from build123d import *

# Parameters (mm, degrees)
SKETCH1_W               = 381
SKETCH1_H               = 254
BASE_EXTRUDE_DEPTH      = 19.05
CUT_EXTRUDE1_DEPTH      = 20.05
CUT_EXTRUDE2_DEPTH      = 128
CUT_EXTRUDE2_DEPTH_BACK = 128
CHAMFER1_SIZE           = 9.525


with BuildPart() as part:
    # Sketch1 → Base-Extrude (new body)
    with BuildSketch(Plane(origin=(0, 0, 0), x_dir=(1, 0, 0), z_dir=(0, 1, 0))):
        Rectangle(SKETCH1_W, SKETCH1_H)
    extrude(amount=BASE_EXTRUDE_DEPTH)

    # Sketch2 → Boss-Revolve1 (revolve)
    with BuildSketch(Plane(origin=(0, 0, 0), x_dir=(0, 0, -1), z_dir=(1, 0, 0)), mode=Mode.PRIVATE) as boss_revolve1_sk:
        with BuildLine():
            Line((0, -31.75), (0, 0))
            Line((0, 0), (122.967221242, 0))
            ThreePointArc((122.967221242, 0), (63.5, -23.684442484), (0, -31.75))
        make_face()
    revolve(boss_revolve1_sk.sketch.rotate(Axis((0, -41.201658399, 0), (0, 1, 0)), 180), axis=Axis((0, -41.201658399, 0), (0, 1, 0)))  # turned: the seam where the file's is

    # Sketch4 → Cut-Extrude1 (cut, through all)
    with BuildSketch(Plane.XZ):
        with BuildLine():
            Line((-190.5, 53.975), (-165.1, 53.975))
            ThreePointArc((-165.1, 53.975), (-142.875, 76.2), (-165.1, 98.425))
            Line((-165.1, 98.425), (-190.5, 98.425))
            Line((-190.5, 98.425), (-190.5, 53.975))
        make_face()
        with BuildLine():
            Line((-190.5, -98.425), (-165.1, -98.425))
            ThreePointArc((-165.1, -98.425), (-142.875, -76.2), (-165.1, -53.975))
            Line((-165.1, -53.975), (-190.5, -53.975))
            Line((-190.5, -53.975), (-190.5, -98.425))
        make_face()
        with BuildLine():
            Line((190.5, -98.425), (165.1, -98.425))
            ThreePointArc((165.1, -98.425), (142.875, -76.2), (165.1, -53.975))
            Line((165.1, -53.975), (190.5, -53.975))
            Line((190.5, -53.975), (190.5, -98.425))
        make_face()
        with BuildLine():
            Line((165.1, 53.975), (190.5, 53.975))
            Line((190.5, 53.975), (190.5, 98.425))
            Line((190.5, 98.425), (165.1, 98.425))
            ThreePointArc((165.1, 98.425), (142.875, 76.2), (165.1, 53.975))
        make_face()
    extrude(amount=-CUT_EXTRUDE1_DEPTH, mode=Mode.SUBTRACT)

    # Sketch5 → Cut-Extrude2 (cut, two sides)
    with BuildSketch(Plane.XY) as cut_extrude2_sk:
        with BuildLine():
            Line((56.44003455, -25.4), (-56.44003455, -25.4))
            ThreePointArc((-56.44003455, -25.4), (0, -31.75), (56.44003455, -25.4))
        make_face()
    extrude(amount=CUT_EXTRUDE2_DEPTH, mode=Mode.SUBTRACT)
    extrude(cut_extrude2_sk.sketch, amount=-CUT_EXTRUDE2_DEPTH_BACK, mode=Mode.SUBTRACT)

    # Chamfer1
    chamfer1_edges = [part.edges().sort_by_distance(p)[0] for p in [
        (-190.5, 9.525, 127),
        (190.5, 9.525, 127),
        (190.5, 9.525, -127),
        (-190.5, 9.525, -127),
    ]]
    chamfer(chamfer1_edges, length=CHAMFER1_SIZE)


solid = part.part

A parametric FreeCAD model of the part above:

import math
import FreeCAD as App
import Part
import Sketcher
Q = App.Units.Quantity


def edges_at(feature, points):
    """Names of the edges that pass closest to the given points."""
    edges = feature.Shape.Edges
    near = lambda p: min(range(len(edges)), key=lambda i: edges[i].distToShape(Part.Vertex(*p))[0])
    return sorted({f"Edge{near(p) + 1}" for p in points})

doc = App.newDocument("Part")
body = doc.addObject("PartDesign::Body", "Body")

# Sketch on XZ plane
sketch1 = body.newObject("Sketcher::SketchObject", "Sketch")
sketch1.AttachmentSupport = (doc.getObject("XZ_Plane"), [""])
sketch1.MapMode = "FlatFace"
sketch1.addGeometry([
    Part.LineSegment(App.Vector(-190, -127, 0), App.Vector(-190, 127, 0)),
    Part.LineSegment(App.Vector(-190, 127, 0), App.Vector(190, 127, 0)),
    Part.LineSegment(App.Vector(190, 127, 0), App.Vector(190, -127, 0)),
    Part.LineSegment(App.Vector(190, -127, 0), App.Vector(-190, -127, 0)),
], False)
sketch1.addConstraint([
    Sketcher.Constraint("Coincident", 0, 2, 1, 1),
    Sketcher.Constraint("Coincident", 1, 2, 2, 1),
    Sketcher.Constraint("Coincident", 2, 2, 3, 1),
    Sketcher.Constraint("Coincident", 3, 2, 0, 1),
    Sketcher.Constraint("Vertical", 0),
    Sketcher.Constraint("Horizontal", 1),
    Sketcher.Constraint("Vertical", 2),
    Sketcher.Constraint("Horizontal", 3),
    Sketcher.Constraint("Symmetric", 0, 2, 2, 2, -1, 1),
    Sketcher.Constraint("DistanceX", 1, 1, 1, 2, Q("15 in")),
    Sketcher.Constraint("DistanceY", 0, 1, 0, 2, Q("10 in")),
])
pad1 = body.newObject("PartDesign::Pad", "Pad")
pad1.Profile = sketch1
pad1.Length = Q("0.75 in")
pad1.Reversed = True

# Sketch on YZ plane
sketch2 = body.newObject("Sketcher::SketchObject", "Sketch001")
sketch2.AttachmentSupport = (doc.getObject("YZ_Plane"), [""])
sketch2.MapMode = "FlatFace"
sketch2.addGeometry([
    Part.LineSegment(App.Vector(0, 0, 0), App.Vector(-32, 0, 0)),
    Part.ArcOfCircle(Part.Circle(App.Vector(222, 0, 0), App.Vector(0, 0, 1), 254), math.radians(-180), math.radians(-151)),
    Part.LineSegment(App.Vector(0, -123, 0), App.Vector(0, 0, 0)),
], False)
sketch2.addConstraint([
    Sketcher.Constraint("Coincident", 0, 2, 1, 1),
    Sketcher.Constraint("Coincident", 1, 2, 2, 1),
    Sketcher.Constraint("Coincident", 2, 2, 0, 1),
    Sketcher.Constraint("Horizontal", 0),
    Sketcher.Constraint("Vertical", 2),
    Sketcher.Constraint("Coincident", 2, 2, -1, 1),
    Sketcher.Constraint("PointOnObject", 1, 3, -1),
    Sketcher.Constraint("Radius", 1, Q("10 in")),
    Sketcher.Constraint("DistanceX", 0, 2, 0, 1, Q("1.25 in")),
])
revolution = body.newObject("PartDesign::Revolution", "Revolution")
revolution.Profile = sketch2
revolution.ReferenceAxis = (sketch2, ["H_Axis"])
revolution.Angle = 360

# Sketch on XZ plane
sketch3 = body.newObject("Sketcher::SketchObject", "Sketch002")
sketch3.AttachmentSupport = (doc.getObject("XZ_Plane"), [""])
sketch3.MapMode = "FlatFace"
sketch3.addGeometry([
    Part.LineSegment(App.Vector(-190, 54, 0), App.Vector(-165, 54, 0)),  # 0
    Part.ArcOfCircle(Part.Circle(App.Vector(-165, 76, 0), App.Vector(0, 0, 1), 22), math.radians(-90), math.radians(90)),  # 1
    Part.LineSegment(App.Vector(-165, 98, 0), App.Vector(-190, 98, 0)),  # 2
    Part.LineSegment(App.Vector(-190, 98, 0), App.Vector(-190, 54, 0)),  # 3
    Part.LineSegment(App.Vector(-190, -98, 0), App.Vector(-165, -98, 0)),  # 4
    Part.ArcOfCircle(Part.Circle(App.Vector(-165, -76, 0), App.Vector(0, 0, 1), 22), math.radians(-90), math.radians(90)),  # 5
    Part.LineSegment(App.Vector(-165, -54, 0), App.Vector(-190, -54, 0)),  # 6
    Part.LineSegment(App.Vector(-190, -54, 0), App.Vector(-190, -98, 0)),  # 7
    Part.LineSegment(App.Vector(165, -98, 0), App.Vector(190, -98, 0)),  # 8
    Part.LineSegment(App.Vector(190, -98, 0), App.Vector(190, -54, 0)),  # 9
    Part.LineSegment(App.Vector(190, -54, 0), App.Vector(165, -54, 0)),  # 10
    Part.ArcOfCircle(Part.Circle(App.Vector(165, -76, 0), App.Vector(0, 0, 1), 22), math.radians(90), math.radians(270)),  # 11
    Part.LineSegment(App.Vector(165, 54, 0), App.Vector(190, 54, 0)),  # 12
    Part.LineSegment(App.Vector(190, 54, 0), App.Vector(190, 98, 0)),  # 13
    Part.LineSegment(App.Vector(190, 98, 0), App.Vector(165, 98, 0)),  # 14
    Part.ArcOfCircle(Part.Circle(App.Vector(165, 76, 0), App.Vector(0, 0, 1), 22), math.radians(90), math.radians(270)),  # 15
], False)
sketch3.addConstraint([
    Sketcher.Constraint("Tangent", 0, 2, 1, 1),
    Sketcher.Constraint("Tangent", 1, 2, 2, 1),
    Sketcher.Constraint("Coincident", 2, 2, 3, 1),
    Sketcher.Constraint("Coincident", 3, 2, 0, 1),
    Sketcher.Constraint("Tangent", 4, 2, 5, 1),
    Sketcher.Constraint("Tangent", 5, 2, 6, 1),
    Sketcher.Constraint("Coincident", 6, 2, 7, 1),
    Sketcher.Constraint("Coincident", 7, 2, 4, 1),
    Sketcher.Constraint("Coincident", 8, 2, 9, 1),
    Sketcher.Constraint("Coincident", 9, 2, 10, 1),
    Sketcher.Constraint("Tangent", 10, 2, 11, 1),
    Sketcher.Constraint("Tangent", 11, 2, 8, 1),
    Sketcher.Constraint("Coincident", 12, 2, 13, 1),
    Sketcher.Constraint("Coincident", 13, 2, 14, 1),
    Sketcher.Constraint("Tangent", 14, 2, 15, 1),
    Sketcher.Constraint("Tangent", 15, 2, 12, 1),
    Sketcher.Constraint("Horizontal", 0),
    Sketcher.Constraint("Horizontal", 2),
    Sketcher.Constraint("Vertical", 3),
    Sketcher.Constraint("Horizontal", 4),
    Sketcher.Constraint("Horizontal", 6),
    Sketcher.Constraint("Vertical", 7),
    Sketcher.Constraint("Horizontal", 8),
    Sketcher.Constraint("Vertical", 9),
    Sketcher.Constraint("Horizontal", 10),
    Sketcher.Constraint("Horizontal", 12),
    Sketcher.Constraint("Vertical", 13),
    Sketcher.Constraint("Horizontal", 14),
    Sketcher.Constraint("Equal", 1, 5),
    Sketcher.Constraint("Equal", 5, 11),
    Sketcher.Constraint("Equal", 11, 15),
    Sketcher.Constraint("Symmetric", 1, 3, 11, 3, -1, 1),
    Sketcher.Constraint("Symmetric", 5, 3, 15, 3, -1, 1),
    Sketcher.Constraint("Symmetric", 5, 3, 11, 3, -2),
    Sketcher.Constraint("Vertical", 3, 2, 6, 2),
    Sketcher.Constraint("Vertical", 9, 2, 12, 2),
    Sketcher.Constraint("Equal", 6, 8),
    Sketcher.Constraint("DistanceX", 0, 1, 0, 2, Q("1 in")),
    Sketcher.Constraint("DistanceY", -1, 1, 1, 3, Q("3 in")),
    Sketcher.Constraint("Radius", 1, Q("0.875 in")),
    Sketcher.Constraint("DistanceX", 5, 3, 11, 3, Q("13 in")),
])
pocket1 = body.newObject("PartDesign::Pocket", "Pocket")
pocket1.Profile = sketch3
pocket1.Type = "ThroughAll"

# Sketch on XY plane
sketch4 = body.newObject("Sketcher::SketchObject", "Sketch003")
sketch4.AttachmentSupport = (doc.getObject("XY_Plane"), [""])
sketch4.MapMode = "FlatFace"
sketch4.addGeometry([
    Part.LineSegment(App.Vector(56, -25, 0), App.Vector(-56, -25, 0)),
    Part.ArcOfCircle(Part.Circle(App.Vector(0, 222, 0), App.Vector(0, 0, 1), 254), math.radians(-103), math.radians(-77)),
], False)
sketch4.addConstraint([
    Sketcher.Constraint("Coincident", 0, 1, 1, 2),
    Sketcher.Constraint("Coincident", 1, 1, 0, 2),
    Sketcher.Constraint("Horizontal", 0),
    Sketcher.Constraint("PointOnObject", 1, 3, -2),
    Sketcher.Constraint("Radius", 1, Q("10 in")),
    Sketcher.Constraint("DistanceY", 0, 1, -1, 1, Q("1 in")),
    Sketcher.Constraint("DistanceY", -1, 1, 1, 3, Q("8.75 in")),
])
pocket2 = body.newObject("PartDesign::Pocket", "Pocket001")
pocket2.Profile = sketch4
pocket2.Type = "ThroughAll"
pocket2.Midplane = True
doc.recompute()

chamfer = body.newObject("PartDesign::Chamfer", "Chamfer")
chamfer.Base = (pocket2, edges_at(pocket2, [
    (-190.5, 9.525, 127),
    (190.5, 9.525, 127),
    (190.5, 9.525, -127),
    (-190.5, 9.525, -127),
]))
chamfer.Size = Q("0.375 in")

doc.recompute()
